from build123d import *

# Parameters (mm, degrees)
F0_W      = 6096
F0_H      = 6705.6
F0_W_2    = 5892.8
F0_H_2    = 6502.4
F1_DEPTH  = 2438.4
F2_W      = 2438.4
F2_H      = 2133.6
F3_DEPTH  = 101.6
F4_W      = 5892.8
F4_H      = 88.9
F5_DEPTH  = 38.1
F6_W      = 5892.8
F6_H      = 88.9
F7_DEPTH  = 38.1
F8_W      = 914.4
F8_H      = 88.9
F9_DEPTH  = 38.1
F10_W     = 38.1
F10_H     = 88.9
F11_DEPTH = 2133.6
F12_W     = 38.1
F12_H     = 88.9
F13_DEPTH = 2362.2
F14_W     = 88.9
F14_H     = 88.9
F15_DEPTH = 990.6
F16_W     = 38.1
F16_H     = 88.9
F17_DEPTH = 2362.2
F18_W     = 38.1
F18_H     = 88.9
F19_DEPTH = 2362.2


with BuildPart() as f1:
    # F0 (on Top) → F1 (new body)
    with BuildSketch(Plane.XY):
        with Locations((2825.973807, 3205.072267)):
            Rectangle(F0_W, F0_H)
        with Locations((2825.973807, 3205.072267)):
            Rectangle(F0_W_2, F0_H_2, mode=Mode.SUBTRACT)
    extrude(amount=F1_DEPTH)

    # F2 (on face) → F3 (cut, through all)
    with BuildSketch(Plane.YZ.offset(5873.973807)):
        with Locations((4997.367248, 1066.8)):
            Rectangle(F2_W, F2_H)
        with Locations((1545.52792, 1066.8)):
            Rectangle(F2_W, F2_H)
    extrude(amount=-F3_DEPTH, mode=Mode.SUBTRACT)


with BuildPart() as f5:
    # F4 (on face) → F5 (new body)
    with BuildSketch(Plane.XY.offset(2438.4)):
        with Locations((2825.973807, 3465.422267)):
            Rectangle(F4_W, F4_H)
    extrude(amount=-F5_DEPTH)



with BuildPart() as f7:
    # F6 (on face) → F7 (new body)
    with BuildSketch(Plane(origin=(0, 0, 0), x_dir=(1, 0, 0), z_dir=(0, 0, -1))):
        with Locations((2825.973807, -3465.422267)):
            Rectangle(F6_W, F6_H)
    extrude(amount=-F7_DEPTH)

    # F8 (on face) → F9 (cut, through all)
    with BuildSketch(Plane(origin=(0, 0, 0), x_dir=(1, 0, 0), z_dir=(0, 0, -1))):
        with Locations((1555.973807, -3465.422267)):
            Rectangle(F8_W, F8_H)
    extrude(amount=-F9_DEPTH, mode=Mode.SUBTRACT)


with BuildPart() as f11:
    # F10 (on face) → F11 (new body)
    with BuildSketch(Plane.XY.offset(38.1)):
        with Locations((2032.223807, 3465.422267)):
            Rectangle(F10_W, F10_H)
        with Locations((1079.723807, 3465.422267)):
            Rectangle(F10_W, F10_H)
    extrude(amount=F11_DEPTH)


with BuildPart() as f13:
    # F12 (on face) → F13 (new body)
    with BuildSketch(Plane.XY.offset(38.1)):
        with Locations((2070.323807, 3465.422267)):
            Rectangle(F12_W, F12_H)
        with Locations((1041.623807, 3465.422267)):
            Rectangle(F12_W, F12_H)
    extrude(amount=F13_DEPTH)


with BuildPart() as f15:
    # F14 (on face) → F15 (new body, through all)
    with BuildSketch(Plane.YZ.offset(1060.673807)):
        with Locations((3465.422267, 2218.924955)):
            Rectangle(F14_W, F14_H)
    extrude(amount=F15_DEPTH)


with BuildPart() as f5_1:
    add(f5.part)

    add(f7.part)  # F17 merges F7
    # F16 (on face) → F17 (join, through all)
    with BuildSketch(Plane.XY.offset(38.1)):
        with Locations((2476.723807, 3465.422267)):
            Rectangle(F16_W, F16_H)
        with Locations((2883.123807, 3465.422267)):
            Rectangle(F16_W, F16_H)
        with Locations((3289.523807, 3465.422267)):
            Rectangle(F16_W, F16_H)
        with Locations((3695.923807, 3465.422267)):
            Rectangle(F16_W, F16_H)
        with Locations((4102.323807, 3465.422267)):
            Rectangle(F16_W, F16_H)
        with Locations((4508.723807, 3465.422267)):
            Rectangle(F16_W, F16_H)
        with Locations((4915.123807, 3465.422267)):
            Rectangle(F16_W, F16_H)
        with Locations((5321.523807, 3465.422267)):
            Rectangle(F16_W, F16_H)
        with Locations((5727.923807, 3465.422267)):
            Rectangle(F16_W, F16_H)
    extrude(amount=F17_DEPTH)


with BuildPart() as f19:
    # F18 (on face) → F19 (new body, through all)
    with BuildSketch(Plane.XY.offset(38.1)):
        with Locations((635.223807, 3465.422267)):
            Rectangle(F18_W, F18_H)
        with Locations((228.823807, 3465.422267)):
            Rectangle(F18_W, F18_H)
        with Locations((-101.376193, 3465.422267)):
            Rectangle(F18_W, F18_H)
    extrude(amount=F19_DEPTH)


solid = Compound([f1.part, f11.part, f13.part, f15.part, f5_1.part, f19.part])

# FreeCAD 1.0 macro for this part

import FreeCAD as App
import Part
import Sketcher

V = App.Vector
Q = App.Units.Quantity


def add_polygon(sketch, points):
    """Adds a closed chain of lines whose ends are joined by coincident constraints."""
    first, n = sketch.GeometryCount, len(points)
    for a, b in zip(points, points[1:] + points[:1]):
        sketch.addGeometry(Part.LineSegment(App.Vector(*a, 0), App.Vector(*b, 0)), False)
    for i in range(n):
        sketch.addConstraint(Sketcher.Constraint("Coincident", first + i, 2, first + (i + 1) % n, 1))

doc = App.newDocument("Part")
params = doc.addObject("Spreadsheet::Sheet", "Params")
for row, (alias, value) in enumerate([
    ("sketch1_width", "240 in"),
    ("sketch1_width2", "232 in"),
    ("sketch1_height", "264 in"),
    ("sketch1_height2", "256 in"),
    ("pad1_length", "96 in"),
    ("sketch2_width", "96 in"),
    ("sketch2_height", "84 in"),
    ("pocket1_length", "4 in"),
    ("sketch3_width", "232 in"),
    ("sketch3_height", "3.5 in"),
    ("pad2_length", "1.5 in"),
    ("sketch4_width", "232 in"),
    ("sketch4_height", "3.5 in"),
    ("pad3_length", "1.5 in"),
    ("sketch5_width", "36 in"),
    ("sketch5_height", "3.5 in"),
    ("sketch6_width", "1.5 in"),
    ("sketch6_height", "3.5 in"),
    ("pad4_length", "84 in"),
    ("sketch7_width", "1.5 in"),
    ("sketch7_height", "3.5 in"),
    ("pad5_length", "93 in"),
    ("sketch8_width", "3.5 in"),
    ("pad6_length", "39 in"),
    ("sketch9_width", "1.5 in"),
    ("sketch9_height", "3.5 in"),
    ("sketch10_width", "1.5 in"),
    ("sketch10_height", "3.5 in"),
    ("pad8_length", "93 in"),
], start=1):
    params.set(f"A{row}", alias)
    params.set(f"B{row}", "=" + value)
    params.setAlias(f"B{row}", alias)

body = doc.addObject("PartDesign::Body", "Body")

# Sketch on XY plane
sketch1 = body.newObject("Sketcher::SketchObject", "Sketch")
sketch1.AttachmentSupport = (doc.getObject("XY_Plane"), [""])
sketch1.MapMode = "FlatFace"
add_polygon(sketch1, [(-222.026193, 6557.872267), (-222.026193, -147.727733), (5873.973807, -147.727733), (5873.973807, 6557.872267)])  # lines 0-3
add_polygon(sketch1, [(5772.373807, -46.127733), (-120.426193, -46.127733), (-120.426193, 6456.272267), (5772.373807, 6456.272267)])  # lines 4-7
sketch1.addConstraint([
    Sketcher.Constraint("Vertical", 0),
    Sketcher.Constraint("Horizontal", 1),
    Sketcher.Constraint("Vertical", 2),
    Sketcher.Constraint("Horizontal", 3),
    Sketcher.Constraint("Horizontal", 4),
    Sketcher.Constraint("Vertical", 5),
    Sketcher.Constraint("Horizontal", 6),
    Sketcher.Constraint("Vertical", 7),
    Sketcher.Constraint("DistanceX", 1, 1, 1, 2, Q("240 in")),
    Sketcher.Constraint("DistanceX", 4, 2, 4, 1, Q("232 in")),
    Sketcher.Constraint("DistanceY", 0, 2, 0, 1, Q("264 in")),
    Sketcher.Constraint("DistanceY", 5, 1, 5, 2, Q("256 in")),
    Sketcher.Constraint("DistanceX", 0, 2, 4, 2, Q("4 in")),
    Sketcher.Constraint("DistanceY", 0, 2, 4, 2, Q("4 in")),
    Sketcher.Constraint("DistanceX", 0, 2, -1, 1, Q("222.026193 mm")),
    Sketcher.Constraint("DistanceY", 0, 2, -1, 1, Q("147.727733 mm")),
])
sketch1.setExpression("Constraints[16]", "Params.sketch1_width")
sketch1.setExpression("Constraints[17]", "Params.sketch1_width2")
sketch1.setExpression("Constraints[18]", "Params.sketch1_height")
sketch1.setExpression("Constraints[19]", "Params.sketch1_height2")
pad1 = body.newObject("PartDesign::Pad", "Pad")
pad1.Profile = sketch1
pad1.setExpression("Length", "Params.pad1_length")

# Sketch on YZ plane
sketch2 = body.newObject("Sketcher::SketchObject", "Sketch001")
sketch2.AttachmentSupport = (doc.getObject("YZ_Plane"), [""])
sketch2.MapMode = "FlatFace"
sketch2.AttachmentOffset = App.Placement(V(0, 0, 5873.973807), App.Rotation())
add_polygon(sketch2, [(3778.167248, 2133.6), (3778.167248, 0), (6216.567248, 0), (6216.567248, 2133.6)])  # lines 0-3
add_polygon(sketch2, [(326.32792, 2133.6), (326.32792, 0), (2764.72792, 0), (2764.72792, 2133.6)])  # lines 4-7
sketch2.addConstraint([
    Sketcher.Constraint("Vertical", 0),
    Sketcher.Constraint("Horizontal", 1),
    Sketcher.Constraint("Vertical", 2),
    Sketcher.Constraint("Horizontal", 3),
    Sketcher.Constraint("Vertical", 4),
    Sketcher.Constraint("Horizontal", 5),
    Sketcher.Constraint("Vertical", 6),
    Sketcher.Constraint("Horizontal", 7),
    Sketcher.Constraint("PointOnObject", 0, 2, -1),
    Sketcher.Constraint("PointOnObject", 4, 2, -1),
    Sketcher.Constraint("Horizontal", 3, 2, 6, 2),
    Sketcher.Constraint("Equal", 3, 5),
    Sketcher.Constraint("DistanceX", 1, 1, 1, 2, Q("96 in")),
    Sketcher.Constraint("DistanceY", 0, 2, 0, 1, Q("84 in")),
    Sketcher.Constraint("DistanceX", -1, 1, 0, 2, Q("3778.167248 mm")),
    Sketcher.Constraint("DistanceX", -1, 1, 4, 2, Q("326.32792 mm")),
])
sketch2.setExpression("Constraints[20]", "Params.sketch2_width")
sketch2.setExpression("Constraints[21]", "Params.sketch2_height")
pocket1 = body.newObject("PartDesign::Pocket", "Pocket")
pocket1.Profile = sketch2
pocket1.setExpression("Length", "Params.pocket1_length")
body2 = doc.addObject("PartDesign::Body", "Body001")

# Sketch on XY plane
sketch3 = body2.newObject("Sketcher::SketchObject", "Sketch002")
sketch3.AttachmentSupport = (doc.getObject("XY_Plane001"), [""])
sketch3.MapMode = "FlatFace"
sketch3.AttachmentOffset = App.Placement(V(0, 0, 96 * 25.4), App.Rotation())
add_polygon(sketch3, [(-120.426193, 3509.872267), (-120.426193, 3420.972267), (5772.373807, 3420.972267), (5772.373807, 3509.872267)])  # lines 0-3
sketch3.addConstraint([
    Sketcher.Constraint("Vertical", 0),
    Sketcher.Constraint("Horizontal", 1),
    Sketcher.Constraint("Vertical", 2),
    Sketcher.Constraint("Horizontal", 3),
    Sketcher.Constraint("DistanceX", 1, 1, 1, 2, Q("232 in")),
    Sketcher.Constraint("DistanceY", 0, 2, 0, 1, Q("3.5 in")),
    Sketcher.Constraint("DistanceX", 0, 2, -1, 1, Q("120.426193 mm")),
    Sketcher.Constraint("DistanceY", -1, 1, 0, 2, Q("3420.972267 mm")),
])
sketch3.setExpression("Constraints[8]", "Params.sketch3_width")
sketch3.setExpression("Constraints[9]", "Params.sketch3_height")
pad2 = body2.newObject("PartDesign::Pad", "Pad001")
pad2.Profile = sketch3
pad2.setExpression("Length", "Params.pad2_length")
pad2.Reversed = True
body3 = doc.addObject("PartDesign::Body", "Body002")
body3.AllowCompound = True

# Sketch on XY plane
sketch4 = body3.newObject("Sketcher::SketchObject", "Sketch003")
sketch4.AttachmentSupport = (doc.getObject("XY_Plane002"), [""])
sketch4.MapMode = "FlatFace"
add_polygon(sketch4, [(-120.426193, 3420.972267), (-120.426193, 3509.872267), (5772.373807, 3509.872267), (5772.373807, 3420.972267)])  # lines 0-3
sketch4.addConstraint([
    Sketcher.Constraint("Vertical", 0),
    Sketcher.Constraint("Horizontal", 1),
    Sketcher.Constraint("Vertical", 2),
    Sketcher.Constraint("Horizontal", 3),
    Sketcher.Constraint("DistanceX", 1, 1, 1, 2, Q("232 in")),
    Sketcher.Constraint("DistanceY", 0, 1, 0, 2, Q("3.5 in")),
    Sketcher.Constraint("DistanceX", 0, 2, -1, 1, Q("120.426193 mm")),
    Sketcher.Constraint("DistanceY", -1, 1, 0, 2, Q("3509.872267 mm")),
])
sketch4.setExpression("Constraints[8]", "Params.sketch4_width")
sketch4.setExpression("Constraints[9]", "Params.sketch4_height")
pad3 = body3.newObject("PartDesign::Pad", "Pad002")
pad3.Profile = sketch4
pad3.setExpression("Length", "Params.pad3_length")

# Sketch on XY plane
sketch5 = body3.newObject("Sketcher::SketchObject", "Sketch004")
sketch5.AttachmentSupport = (doc.getObject("XY_Plane002"), [""])
sketch5.MapMode = "FlatFace"
add_polygon(sketch5, [(1098.773807, 3420.972267), (1098.773807, 3509.872267), (2013.173807, 3509.872267), (2013.173807, 3420.972267)])  # lines 0-3
sketch5.addConstraint([
    Sketcher.Constraint("Vertical", 0),
    Sketcher.Constraint("Horizontal", 1),
    Sketcher.Constraint("Vertical", 2),
    Sketcher.Constraint("Horizontal", 3),
    Sketcher.Constraint("DistanceX", 1, 1, 1, 2, Q("36 in")),
    Sketcher.Constraint("DistanceY", 0, 1, 0, 2, Q("3.5 in")),
    Sketcher.Constraint("DistanceX", -1, 1, 0, 2, Q("1098.773807 mm")),
    Sketcher.Constraint("DistanceY", -1, 1, 0, 2, Q("3509.872267 mm")),
])
sketch5.setExpression("Constraints[8]", "Params.sketch5_width")
sketch5.setExpression("Constraints[9]", "Params.sketch5_height")
pocket2 = body3.newObject("PartDesign::Pocket", "Pocket001")
pocket2.Profile = sketch5
pocket2.Type = "ThroughAll"
pocket2.Reversed = True
body4 = doc.addObject("PartDesign::Body", "Body003")
body4.AllowCompound = True

# Sketch on XY plane
sketch6 = body4.newObject("Sketcher::SketchObject", "Sketch005")
sketch6.AttachmentSupport = (doc.getObject("XY_Plane003"), [""])
sketch6.MapMode = "FlatFace"
sketch6.AttachmentOffset = App.Placement(V(0, 0, 1.5 * 25.4), App.Rotation())
add_polygon(sketch6, [(2013.173807, 3509.872267), (2013.173807, 3420.972267), (2051.273807, 3420.972267), (2051.273807, 3509.872267)])  # lines 0-3
add_polygon(sketch6, [(1060.673807, 3509.872267), (1060.673807, 3420.972267), (1098.773807, 3420.972267), (1098.773807, 3509.872267)])  # lines 4-7
sketch6.addConstraint([
    Sketcher.Constraint("Vertical", 0),
    Sketcher.Constraint("Horizontal", 1),
    Sketcher.Constraint("Vertical", 2),
    Sketcher.Constraint("Horizontal", 3),
    Sketcher.Constraint("Vertical", 4),
    Sketcher.Constraint("Horizontal", 5),
    Sketcher.Constraint("Vertical", 6),
    Sketcher.Constraint("Horizontal", 7),
    Sketcher.Constraint("Horizontal", 1, 2, 4, 2),
    Sketcher.Constraint("Horizontal", 3, 2, 6, 2),
    Sketcher.Constraint("Equal", 3, 5),
    Sketcher.Constraint("DistanceX", 1, 1, 1, 2, Q("1.5 in")),
    Sketcher.Constraint("DistanceY", 0, 2, 0, 1, Q("3.5 in")),
    Sketcher.Constraint("DistanceX", 4, 2, 1, 2, Q("39 in")),
    Sketcher.Constraint("DistanceX", -1, 1, 0, 2, Q("2013.173807 mm")),
    Sketcher.Constraint("DistanceY", -1, 1, 0, 2, Q("3420.972267 mm")),
])
sketch6.setExpression("Constraints[19]", "Params.sketch6_width")
sketch6.setExpression("Constraints[20]", "Params.sketch6_height")
pad4 = body4.newObject("PartDesign::Pad", "Pad003")
pad4.Profile = sketch6
pad4.setExpression("Length", "Params.pad4_length")
body5 = doc.addObject("PartDesign::Body", "Body004")
body5.AllowCompound = True

# Sketch on XY plane
sketch7 = body5.newObject("Sketcher::SketchObject", "Sketch006")
sketch7.AttachmentSupport = (doc.getObject("XY_Plane004"), [""])
sketch7.MapMode = "FlatFace"
sketch7.AttachmentOffset = App.Placement(V(0, 0, 1.5 * 25.4), App.Rotation())
add_polygon(sketch7, [(2051.273807, 3509.872267), (2051.273807, 3420.972267), (2089.373807, 3420.972267), (2089.373807, 3509.872267)])  # lines 0-3
add_polygon(sketch7, [(1022.573807, 3509.872267), (1022.573807, 3420.972267), (1060.673807, 3420.972267), (1060.673807, 3509.872267)])  # lines 4-7
sketch7.addConstraint([
    Sketcher.Constraint("Vertical", 0),
    Sketcher.Constraint("Horizontal", 1),
    Sketcher.Constraint("Vertical", 2),
    Sketcher.Constraint("Horizontal", 3),
    Sketcher.Constraint("Vertical", 4),
    Sketcher.Constraint("Horizontal", 5),
    Sketcher.Constraint("Vertical", 6),
    Sketcher.Constraint("Horizontal", 7),
    Sketcher.Constraint("Horizontal", 1, 2, 4, 2),
    Sketcher.Constraint("Horizontal", 3, 2, 6, 2),
    Sketcher.Constraint("Equal", 3, 5),
    Sketcher.Constraint("DistanceX", 1, 1, 1, 2, Q("1.5 in")),
    Sketcher.Constraint("DistanceY", 0, 2, 0, 1, Q("3.5 in")),
    Sketcher.Constraint("DistanceX", 4, 2, 1, 2, Q("42 in")),
    Sketcher.Constraint("DistanceX", -1, 1, 0, 2, Q("2051.273807 mm")),
    Sketcher.Constraint("DistanceY", -1, 1, 0, 2, Q("3420.972267 mm")),
])
sketch7.setExpression("Constraints[19]", "Params.sketch7_width")
sketch7.setExpression("Constraints[20]", "Params.sketch7_height")
pad5 = body5.newObject("PartDesign::Pad", "Pad004")
pad5.Profile = sketch7
pad5.setExpression("Length", "Params.pad5_length")
body6 = doc.addObject("PartDesign::Body", "Body005")

# Sketch on YZ plane
sketch8 = body6.newObject("Sketcher::SketchObject", "Sketch007")
sketch8.AttachmentSupport = (doc.getObject("YZ_Plane005"), [""])
sketch8.MapMode = "FlatFace"
sketch8.AttachmentOffset = App.Placement(V(0, 0, 1060.673807), App.Rotation())
add_polygon(sketch8, [(3420.972267, 2263.374955), (3420.972267, 2174.474955), (3509.872267, 2174.474955), (3509.872267, 2263.374955)])  # lines 0-3
sketch8.addConstraint([
    Sketcher.Constraint("Vertical", 0),
    Sketcher.Constraint("Horizontal", 1),
    Sketcher.Constraint("Vertical", 2),
    Sketcher.Constraint("Horizontal", 3),
    Sketcher.Constraint("Equal", 3, 0),
    Sketcher.Constraint("DistanceX", 1, 1, 1, 2, Q("3.5 in")),
    Sketcher.Constraint("DistanceX", -1, 1, 0, 2, Q("3420.972267 mm")),
    Sketcher.Constraint("DistanceY", -1, 1, 0, 2, Q("2174.474955 mm")),
])
sketch8.setExpression("Constraints[9]", "Params.sketch8_width")
pad6 = body6.newObject("PartDesign::Pad", "Pad005")
pad6.Profile = sketch8
pad6.setExpression("Length", "Params.pad6_length")
body2.AllowCompound = True
doc.recompute()

boolean = body2.newObject("PartDesign::Boolean", "Boolean")
boolean.Type = "Fuse"
boolean.addObjects([body3])

# Sketch on XY plane
sketch9 = body2.newObject("Sketcher::SketchObject", "Sketch008")
sketch9.AttachmentSupport = (doc.getObject("XY_Plane001"), [""])
sketch9.MapMode = "FlatFace"
sketch9.AttachmentOffset = App.Placement(V(0, 0, 1.5 * 25.4), App.Rotation())
add_polygon(sketch9, [(2457.673807, 3509.872267), (2457.673807, 3420.972267), (2495.773807, 3420.972267), (2495.773807, 3509.872267)])  # lines 0-3
add_polygon(sketch9, [(2864.073807, 3509.872267), (2864.073807, 3420.972267), (2902.173807, 3420.972267), (2902.173807, 3509.872267)])  # lines 4-7
add_polygon(sketch9, [(3270.473807, 3509.872267), (3270.473807, 3420.972267), (3308.573807, 3420.972267), (3308.573807, 3509.872267)])  # lines 8-11
add_polygon(sketch9, [(3676.873807, 3509.872267), (3676.873807, 3420.972267), (3714.973807, 3420.972267), (3714.973807, 3509.872267)])  # lines 12-15
add_polygon(sketch9, [(4083.273807, 3509.872267), (4083.273807, 3420.972267), (4121.373807, 3420.972267), (4121.373807, 3509.872267)])  # lines 16-19
add_polygon(sketch9, [(4489.673807, 3509.872267), (4489.673807, 3420.972267), (4527.773807, 3420.972267), (4527.773807, 3509.872267)])  # lines 20-23
add_polygon(sketch9, [(4896.073807, 3509.872267), (4896.073807, 3420.972267), (4934.173807, 3420.972267), (4934.173807, 3509.872267)])  # lines 24-27
add_polygon(sketch9, [(5302.473807, 3509.872267), (5302.473807, 3420.972267), (5340.573807, 3420.972267), (5340.573807, 3509.872267)])  # lines 28-31
add_polygon(sketch9, [(5708.873807, 3509.872267), (5708.873807, 3420.972267), (5746.973807, 3420.972267), (5746.973807, 3509.872267)])  # lines 32-35
sketch9.addConstraint([
    Sketcher.Constraint("Vertical", 0),
    Sketcher.Constraint("Horizontal", 1),
    Sketcher.Constraint("Vertical", 2),
    Sketcher.Constraint("Horizontal", 3),
    Sketcher.Constraint("Vertical", 4),
    Sketcher.Constraint("Horizontal", 5),
    Sketcher.Constraint("Vertical", 6),
    Sketcher.Constraint("Horizontal", 7),
    Sketcher.Constraint("Vertical", 8),
    Sketcher.Constraint("Horizontal", 9),
    Sketcher.Constraint("Vertical", 10),
    Sketcher.Constraint("Horizontal", 11),
    Sketcher.Constraint("Vertical", 12),
    Sketcher.Constraint("Horizontal", 13),
    Sketcher.Constraint("Vertical", 14),
    Sketcher.Constraint("Horizontal", 15),
    Sketcher.Constraint("Vertical", 16),
    Sketcher.Constraint("Horizontal", 17),
    Sketcher.Constraint("Vertical", 18),
    Sketcher.Constraint("Horizontal", 19),
    Sketcher.Constraint("Vertical", 20),
    Sketcher.Constraint("Horizontal", 21),
    Sketcher.Constraint("Vertical", 22),
    Sketcher.Constraint("Horizontal", 23),
    Sketcher.Constraint("Vertical", 24),
    Sketcher.Constraint("Horizontal", 25),
    Sketcher.Constraint("Vertical", 26),
    Sketcher.Constraint("Horizontal", 27),
    Sketcher.Constraint("Vertical", 28),
    Sketcher.Constraint("Horizontal", 29),
    Sketcher.Constraint("Vertical", 30),
    Sketcher.Constraint("Horizontal", 31),
    Sketcher.Constraint("Vertical", 32),
    Sketcher.Constraint("Horizontal", 33),
    Sketcher.Constraint("Vertical", 34),
    Sketcher.Constraint("Horizontal", 35),
    Sketcher.Constraint("Horizontal", 1, 2, 4, 2),
    Sketcher.Constraint("Horizontal", 3, 2, 6, 2),
    Sketcher.Constraint("Horizontal", 5, 2, 8, 2),
    Sketcher.Constraint("Horizontal", 7, 2, 10, 2),
    Sketcher.Constraint("Horizontal", 9, 2, 12, 2),
    Sketcher.Constraint("Horizontal", 11, 2, 14, 2),
    Sketcher.Constraint("Horizontal", 13, 2, 16, 2),
    Sketcher.Constraint("Horizontal", 15, 2, 18, 2),
    Sketcher.Constraint("Horizontal", 17, 2, 20, 2),
    Sketcher.Constraint("Horizontal", 19, 2, 22, 2),
    Sketcher.Constraint("Horizontal", 21, 2, 24, 2),
    Sketcher.Constraint("Horizontal", 23, 2, 26, 2),
    Sketcher.Constraint("Horizontal", 25, 2, 28, 2),
    Sketcher.Constraint("Horizontal", 27, 2, 30, 2),
    Sketcher.Constraint("Horizontal", 29, 2, 32, 2),
    Sketcher.Constraint("Horizontal", 31, 2, 34, 2),
    Sketcher.Constraint("Equal", 3, 5),
    Sketcher.Constraint("Equal", 7, 9),
    Sketcher.Constraint("Equal", 11, 13),
    Sketcher.Constraint("Equal", 15, 17),
    Sketcher.Constraint("Equal", 19, 21),
    Sketcher.Constraint("Equal", 23, 25),
    Sketcher.Constraint("Equal", 27, 29),
    Sketcher.Constraint("Equal", 31, 33),
    Sketcher.Constraint("DistanceX", 1, 1, 1, 2, Q("1.5 in")),
    Sketcher.Constraint("DistanceY", 0, 2, 0, 1, Q("3.5 in")),
    Sketcher.Constraint("DistanceX", 0, 2, 4, 2, Q("16 in")),
    Sketcher.Constraint("DistanceX", 4, 2, 8, 2, Q("16 in")),
    Sketcher.Constraint("DistanceX", 8, 2, 12, 2, Q("16 in")),
    Sketcher.Constraint("DistanceX", 12, 2, 16, 2, Q("16 in")),
    Sketcher.Constraint("DistanceX", 16, 2, 20, 2, Q("16 in")),
    Sketcher.Constraint("DistanceX", 20, 2, 24, 2, Q("16 in")),
    Sketcher.Constraint("DistanceX", 24, 2, 28, 2, Q("16 in")),
    Sketcher.Constraint("DistanceX", 28, 2, 32, 2, Q("16 in")),
    Sketcher.Constraint("DistanceX", -1, 1, 0, 2, Q("2457.673807 mm")),
    Sketcher.Constraint("DistanceY", -1, 1, 0, 2, Q("3420.972267 mm")),
])
sketch9.setExpression("Constraints[96]", "Params.sketch9_width")
sketch9.setExpression("Constraints[97]", "Params.sketch9_height")
pad7 = body2.newObject("PartDesign::Pad", "Pad006")
pad7.Profile = sketch9
pad7.Type = "UpToLast"
body7 = doc.addObject("PartDesign::Body", "Body006")
body7.AllowCompound = True

# Sketch on XY plane
sketch10 = body7.newObject("Sketcher::SketchObject", "Sketch009")
sketch10.AttachmentSupport = (doc.getObject("XY_Plane006"), [""])
sketch10.MapMode = "FlatFace"
sketch10.AttachmentOffset = App.Placement(V(0, 0, 1.5 * 25.4), App.Rotation())
add_polygon(sketch10, [(616.173807, 3509.872267), (616.173807, 3420.972267), (654.273807, 3420.972267), (654.273807, 3509.872267)])  # lines 0-3
add_polygon(sketch10, [(209.773807, 3509.872267), (209.773807, 3420.972267), (247.873807, 3420.972267), (247.873807, 3509.872267)])  # lines 4-7
add_polygon(sketch10, [(-120.426193, 3509.872267), (-120.426193, 3420.972267), (-82.326193, 3420.972267), (-82.326193, 3509.872267)])  # lines 8-11
sketch10.addConstraint([
    Sketcher.Constraint("Vertical", 0),
    Sketcher.Constraint("Horizontal", 1),
    Sketcher.Constraint("Vertical", 2),
    Sketcher.Constraint("Horizontal", 3),
    Sketcher.Constraint("Vertical", 4),
    Sketcher.Constraint("Horizontal", 5),
    Sketcher.Constraint("Vertical", 6),
    Sketcher.Constraint("Horizontal", 7),
    Sketcher.Constraint("Vertical", 8),
    Sketcher.Constraint("Horizontal", 9),
    Sketcher.Constraint("Vertical", 10),
    Sketcher.Constraint("Horizontal", 11),
    Sketcher.Constraint("Horizontal", 1, 2, 4, 2),
    Sketcher.Constraint("Horizontal", 3, 2, 6, 2),
    Sketcher.Constraint("Horizontal", 5, 2, 8, 2),
    Sketcher.Constraint("Horizontal", 7, 2, 10, 2),
    Sketcher.Constraint("Equal", 3, 5),
    Sketcher.Constraint("Equal", 7, 9),
    Sketcher.Constraint("DistanceX", 1, 1, 1, 2, Q("1.5 in")),
    Sketcher.Constraint("DistanceY", 0, 2, 0, 1, Q("3.5 in")),
    Sketcher.Constraint("DistanceX", 4, 2, 0, 2, Q("16 in")),
    Sketcher.Constraint("DistanceX", 8, 2, 4, 2, Q("13 in")),
    Sketcher.Constraint("DistanceX", -1, 1, 0, 2, Q("616.173807 mm")),
    Sketcher.Constraint("DistanceY", -1, 1, 0, 2, Q("3420.972267 mm")),
])
sketch10.setExpression("Constraints[30]", "Params.sketch10_width")
sketch10.setExpression("Constraints[31]", "Params.sketch10_height")
pad8 = body7.newObject("PartDesign::Pad", "Pad007")
pad8.Profile = sketch10
pad8.setExpression("Length", "Params.pad8_length")

doc.recompute()
